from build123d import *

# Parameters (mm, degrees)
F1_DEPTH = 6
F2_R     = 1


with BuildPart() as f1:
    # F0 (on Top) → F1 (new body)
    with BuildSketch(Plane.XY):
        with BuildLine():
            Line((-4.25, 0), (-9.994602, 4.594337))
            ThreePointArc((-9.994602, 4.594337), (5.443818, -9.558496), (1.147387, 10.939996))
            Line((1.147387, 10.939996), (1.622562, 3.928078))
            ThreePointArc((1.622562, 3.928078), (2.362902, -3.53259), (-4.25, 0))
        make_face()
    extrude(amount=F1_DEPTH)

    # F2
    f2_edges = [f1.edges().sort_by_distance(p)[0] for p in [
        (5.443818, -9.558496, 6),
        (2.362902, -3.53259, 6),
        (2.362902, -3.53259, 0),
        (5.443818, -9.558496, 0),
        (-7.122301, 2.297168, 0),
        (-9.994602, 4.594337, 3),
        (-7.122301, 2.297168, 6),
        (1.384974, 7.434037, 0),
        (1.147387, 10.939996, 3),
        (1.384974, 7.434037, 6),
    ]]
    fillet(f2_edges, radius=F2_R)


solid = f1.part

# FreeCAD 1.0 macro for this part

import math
import FreeCAD as App
import Part
import Sketcher

V = App.Vector
Q = App.Units.Quantity


def edges_at(feature, points):
    """Names of the edges that pass closest to the given points."""
    edges = feature.Shape.Edges
    near = lambda p: min(range(len(edges)), key=lambda i: edges[i].distToShape(Part.Vertex(*p))[0])
    return sorted({f"Edge{near(p) + 1}" for p in points})

doc = App.newDocument("Part")
params = doc.addObject("Spreadsheet::Sheet", "Params")
for row, (alias, value) in enumerate([
    ("sketch1_radius", "11 mm"),
    ("sketch1_radius2", "4.25 mm"),
    ("pad1_length", "6 mm"),
    ("fillet_radius", "1 mm"),
], start=1):
    params.set(f"A{row}", alias)
    params.set(f"B{row}", "=" + value)
    params.setAlias(f"B{row}", alias)

body = doc.addObject("PartDesign::Body", "Body")

# Sketch on XY plane
sketch1 = doc.addObject("Sketcher::SketchObject", "Sketch")
body.addObject(sketch1)
sketch1.AttachmentSupport = (doc.XY_Plane, [""])
sketch1.MapMode = "FlatFace"
sketch1.addGeometry([
    Part.LineSegment(V(-4.25, 0, 0), V(-9.994602, 4.594337, 0)),
    Part.ArcOfCircle(Part.Circle(V(0, 0, 0), V(0, 0, 1), 11), math.radians(155.312619), math.radians(444.012707)),
    Part.LineSegment(V(1.147387, 10.939996, 0), V(1.622562, 3.928078, 0)),
    Part.ArcOfCircle(Part.Circle(V(0, 0, 0), V(0, 0, 1), 4.25), math.radians(-179.999994), math.radians(67.556062)),
], False)
sketch1.addConstraint([
    Sketcher.Constraint("Coincident", 0, 2, 1, 1),
    Sketcher.Constraint("Coincident", 1, 2, 2, 1),
    Sketcher.Constraint("Coincident", 2, 2, 3, 2),
    Sketcher.Constraint("Coincident", 3, 1, 0, 1),
    Sketcher.Constraint("Coincident", 1, 3, -1, 1),
    Sketcher.Constraint("Coincident", 3, 3, -1, 1),
    Sketcher.Constraint("PointOnObject", 3, 1, -1),
    Sketcher.Constraint("Radius", 1, Q("11 mm")),
    Sketcher.Constraint("Radius", 3, Q("4.25 mm")),
    Sketcher.Constraint("Distance", 2, Q("7.028 mm")),
    Sketcher.Constraint("Distance", 0, Q("7.35584 mm")),
    Sketcher.Constraint("DistanceY", -1, 1, 2, 2, Q("3.928078 mm")),
])
sketch1.setExpression("Constraints[7]", "Params.sketch1_radius")
sketch1.setExpression("Constraints[8]", "Params.sketch1_radius2")
pad1 = doc.addObject("PartDesign::Pad", "Pad")
body.addObject(pad1)
pad1.Profile = sketch1
pad1.setExpression("Length", "Params.pad1_length")
doc.recompute()

fillet = doc.addObject("PartDesign::Fillet", "Fillet")
body.addObject(fillet)
fillet.Base = (pad1, edges_at(pad1, [
    (5.444, -9.558, 6),
    (2.363, -3.533, 6),
    (2.363, -3.533, 0),
    (5.444, -9.558, 0),
    (-7.122, 2.297, 0),
    (-9.995, 4.594, 3),
    (-7.122, 2.297, 6),
    (1.385, 7.434, 0),
    (1.147, 10.94, 3),
    (1.385, 7.434, 6),
]))
fillet.setExpression("Radius", "Params.fillet_radius")

doc.recompute()
